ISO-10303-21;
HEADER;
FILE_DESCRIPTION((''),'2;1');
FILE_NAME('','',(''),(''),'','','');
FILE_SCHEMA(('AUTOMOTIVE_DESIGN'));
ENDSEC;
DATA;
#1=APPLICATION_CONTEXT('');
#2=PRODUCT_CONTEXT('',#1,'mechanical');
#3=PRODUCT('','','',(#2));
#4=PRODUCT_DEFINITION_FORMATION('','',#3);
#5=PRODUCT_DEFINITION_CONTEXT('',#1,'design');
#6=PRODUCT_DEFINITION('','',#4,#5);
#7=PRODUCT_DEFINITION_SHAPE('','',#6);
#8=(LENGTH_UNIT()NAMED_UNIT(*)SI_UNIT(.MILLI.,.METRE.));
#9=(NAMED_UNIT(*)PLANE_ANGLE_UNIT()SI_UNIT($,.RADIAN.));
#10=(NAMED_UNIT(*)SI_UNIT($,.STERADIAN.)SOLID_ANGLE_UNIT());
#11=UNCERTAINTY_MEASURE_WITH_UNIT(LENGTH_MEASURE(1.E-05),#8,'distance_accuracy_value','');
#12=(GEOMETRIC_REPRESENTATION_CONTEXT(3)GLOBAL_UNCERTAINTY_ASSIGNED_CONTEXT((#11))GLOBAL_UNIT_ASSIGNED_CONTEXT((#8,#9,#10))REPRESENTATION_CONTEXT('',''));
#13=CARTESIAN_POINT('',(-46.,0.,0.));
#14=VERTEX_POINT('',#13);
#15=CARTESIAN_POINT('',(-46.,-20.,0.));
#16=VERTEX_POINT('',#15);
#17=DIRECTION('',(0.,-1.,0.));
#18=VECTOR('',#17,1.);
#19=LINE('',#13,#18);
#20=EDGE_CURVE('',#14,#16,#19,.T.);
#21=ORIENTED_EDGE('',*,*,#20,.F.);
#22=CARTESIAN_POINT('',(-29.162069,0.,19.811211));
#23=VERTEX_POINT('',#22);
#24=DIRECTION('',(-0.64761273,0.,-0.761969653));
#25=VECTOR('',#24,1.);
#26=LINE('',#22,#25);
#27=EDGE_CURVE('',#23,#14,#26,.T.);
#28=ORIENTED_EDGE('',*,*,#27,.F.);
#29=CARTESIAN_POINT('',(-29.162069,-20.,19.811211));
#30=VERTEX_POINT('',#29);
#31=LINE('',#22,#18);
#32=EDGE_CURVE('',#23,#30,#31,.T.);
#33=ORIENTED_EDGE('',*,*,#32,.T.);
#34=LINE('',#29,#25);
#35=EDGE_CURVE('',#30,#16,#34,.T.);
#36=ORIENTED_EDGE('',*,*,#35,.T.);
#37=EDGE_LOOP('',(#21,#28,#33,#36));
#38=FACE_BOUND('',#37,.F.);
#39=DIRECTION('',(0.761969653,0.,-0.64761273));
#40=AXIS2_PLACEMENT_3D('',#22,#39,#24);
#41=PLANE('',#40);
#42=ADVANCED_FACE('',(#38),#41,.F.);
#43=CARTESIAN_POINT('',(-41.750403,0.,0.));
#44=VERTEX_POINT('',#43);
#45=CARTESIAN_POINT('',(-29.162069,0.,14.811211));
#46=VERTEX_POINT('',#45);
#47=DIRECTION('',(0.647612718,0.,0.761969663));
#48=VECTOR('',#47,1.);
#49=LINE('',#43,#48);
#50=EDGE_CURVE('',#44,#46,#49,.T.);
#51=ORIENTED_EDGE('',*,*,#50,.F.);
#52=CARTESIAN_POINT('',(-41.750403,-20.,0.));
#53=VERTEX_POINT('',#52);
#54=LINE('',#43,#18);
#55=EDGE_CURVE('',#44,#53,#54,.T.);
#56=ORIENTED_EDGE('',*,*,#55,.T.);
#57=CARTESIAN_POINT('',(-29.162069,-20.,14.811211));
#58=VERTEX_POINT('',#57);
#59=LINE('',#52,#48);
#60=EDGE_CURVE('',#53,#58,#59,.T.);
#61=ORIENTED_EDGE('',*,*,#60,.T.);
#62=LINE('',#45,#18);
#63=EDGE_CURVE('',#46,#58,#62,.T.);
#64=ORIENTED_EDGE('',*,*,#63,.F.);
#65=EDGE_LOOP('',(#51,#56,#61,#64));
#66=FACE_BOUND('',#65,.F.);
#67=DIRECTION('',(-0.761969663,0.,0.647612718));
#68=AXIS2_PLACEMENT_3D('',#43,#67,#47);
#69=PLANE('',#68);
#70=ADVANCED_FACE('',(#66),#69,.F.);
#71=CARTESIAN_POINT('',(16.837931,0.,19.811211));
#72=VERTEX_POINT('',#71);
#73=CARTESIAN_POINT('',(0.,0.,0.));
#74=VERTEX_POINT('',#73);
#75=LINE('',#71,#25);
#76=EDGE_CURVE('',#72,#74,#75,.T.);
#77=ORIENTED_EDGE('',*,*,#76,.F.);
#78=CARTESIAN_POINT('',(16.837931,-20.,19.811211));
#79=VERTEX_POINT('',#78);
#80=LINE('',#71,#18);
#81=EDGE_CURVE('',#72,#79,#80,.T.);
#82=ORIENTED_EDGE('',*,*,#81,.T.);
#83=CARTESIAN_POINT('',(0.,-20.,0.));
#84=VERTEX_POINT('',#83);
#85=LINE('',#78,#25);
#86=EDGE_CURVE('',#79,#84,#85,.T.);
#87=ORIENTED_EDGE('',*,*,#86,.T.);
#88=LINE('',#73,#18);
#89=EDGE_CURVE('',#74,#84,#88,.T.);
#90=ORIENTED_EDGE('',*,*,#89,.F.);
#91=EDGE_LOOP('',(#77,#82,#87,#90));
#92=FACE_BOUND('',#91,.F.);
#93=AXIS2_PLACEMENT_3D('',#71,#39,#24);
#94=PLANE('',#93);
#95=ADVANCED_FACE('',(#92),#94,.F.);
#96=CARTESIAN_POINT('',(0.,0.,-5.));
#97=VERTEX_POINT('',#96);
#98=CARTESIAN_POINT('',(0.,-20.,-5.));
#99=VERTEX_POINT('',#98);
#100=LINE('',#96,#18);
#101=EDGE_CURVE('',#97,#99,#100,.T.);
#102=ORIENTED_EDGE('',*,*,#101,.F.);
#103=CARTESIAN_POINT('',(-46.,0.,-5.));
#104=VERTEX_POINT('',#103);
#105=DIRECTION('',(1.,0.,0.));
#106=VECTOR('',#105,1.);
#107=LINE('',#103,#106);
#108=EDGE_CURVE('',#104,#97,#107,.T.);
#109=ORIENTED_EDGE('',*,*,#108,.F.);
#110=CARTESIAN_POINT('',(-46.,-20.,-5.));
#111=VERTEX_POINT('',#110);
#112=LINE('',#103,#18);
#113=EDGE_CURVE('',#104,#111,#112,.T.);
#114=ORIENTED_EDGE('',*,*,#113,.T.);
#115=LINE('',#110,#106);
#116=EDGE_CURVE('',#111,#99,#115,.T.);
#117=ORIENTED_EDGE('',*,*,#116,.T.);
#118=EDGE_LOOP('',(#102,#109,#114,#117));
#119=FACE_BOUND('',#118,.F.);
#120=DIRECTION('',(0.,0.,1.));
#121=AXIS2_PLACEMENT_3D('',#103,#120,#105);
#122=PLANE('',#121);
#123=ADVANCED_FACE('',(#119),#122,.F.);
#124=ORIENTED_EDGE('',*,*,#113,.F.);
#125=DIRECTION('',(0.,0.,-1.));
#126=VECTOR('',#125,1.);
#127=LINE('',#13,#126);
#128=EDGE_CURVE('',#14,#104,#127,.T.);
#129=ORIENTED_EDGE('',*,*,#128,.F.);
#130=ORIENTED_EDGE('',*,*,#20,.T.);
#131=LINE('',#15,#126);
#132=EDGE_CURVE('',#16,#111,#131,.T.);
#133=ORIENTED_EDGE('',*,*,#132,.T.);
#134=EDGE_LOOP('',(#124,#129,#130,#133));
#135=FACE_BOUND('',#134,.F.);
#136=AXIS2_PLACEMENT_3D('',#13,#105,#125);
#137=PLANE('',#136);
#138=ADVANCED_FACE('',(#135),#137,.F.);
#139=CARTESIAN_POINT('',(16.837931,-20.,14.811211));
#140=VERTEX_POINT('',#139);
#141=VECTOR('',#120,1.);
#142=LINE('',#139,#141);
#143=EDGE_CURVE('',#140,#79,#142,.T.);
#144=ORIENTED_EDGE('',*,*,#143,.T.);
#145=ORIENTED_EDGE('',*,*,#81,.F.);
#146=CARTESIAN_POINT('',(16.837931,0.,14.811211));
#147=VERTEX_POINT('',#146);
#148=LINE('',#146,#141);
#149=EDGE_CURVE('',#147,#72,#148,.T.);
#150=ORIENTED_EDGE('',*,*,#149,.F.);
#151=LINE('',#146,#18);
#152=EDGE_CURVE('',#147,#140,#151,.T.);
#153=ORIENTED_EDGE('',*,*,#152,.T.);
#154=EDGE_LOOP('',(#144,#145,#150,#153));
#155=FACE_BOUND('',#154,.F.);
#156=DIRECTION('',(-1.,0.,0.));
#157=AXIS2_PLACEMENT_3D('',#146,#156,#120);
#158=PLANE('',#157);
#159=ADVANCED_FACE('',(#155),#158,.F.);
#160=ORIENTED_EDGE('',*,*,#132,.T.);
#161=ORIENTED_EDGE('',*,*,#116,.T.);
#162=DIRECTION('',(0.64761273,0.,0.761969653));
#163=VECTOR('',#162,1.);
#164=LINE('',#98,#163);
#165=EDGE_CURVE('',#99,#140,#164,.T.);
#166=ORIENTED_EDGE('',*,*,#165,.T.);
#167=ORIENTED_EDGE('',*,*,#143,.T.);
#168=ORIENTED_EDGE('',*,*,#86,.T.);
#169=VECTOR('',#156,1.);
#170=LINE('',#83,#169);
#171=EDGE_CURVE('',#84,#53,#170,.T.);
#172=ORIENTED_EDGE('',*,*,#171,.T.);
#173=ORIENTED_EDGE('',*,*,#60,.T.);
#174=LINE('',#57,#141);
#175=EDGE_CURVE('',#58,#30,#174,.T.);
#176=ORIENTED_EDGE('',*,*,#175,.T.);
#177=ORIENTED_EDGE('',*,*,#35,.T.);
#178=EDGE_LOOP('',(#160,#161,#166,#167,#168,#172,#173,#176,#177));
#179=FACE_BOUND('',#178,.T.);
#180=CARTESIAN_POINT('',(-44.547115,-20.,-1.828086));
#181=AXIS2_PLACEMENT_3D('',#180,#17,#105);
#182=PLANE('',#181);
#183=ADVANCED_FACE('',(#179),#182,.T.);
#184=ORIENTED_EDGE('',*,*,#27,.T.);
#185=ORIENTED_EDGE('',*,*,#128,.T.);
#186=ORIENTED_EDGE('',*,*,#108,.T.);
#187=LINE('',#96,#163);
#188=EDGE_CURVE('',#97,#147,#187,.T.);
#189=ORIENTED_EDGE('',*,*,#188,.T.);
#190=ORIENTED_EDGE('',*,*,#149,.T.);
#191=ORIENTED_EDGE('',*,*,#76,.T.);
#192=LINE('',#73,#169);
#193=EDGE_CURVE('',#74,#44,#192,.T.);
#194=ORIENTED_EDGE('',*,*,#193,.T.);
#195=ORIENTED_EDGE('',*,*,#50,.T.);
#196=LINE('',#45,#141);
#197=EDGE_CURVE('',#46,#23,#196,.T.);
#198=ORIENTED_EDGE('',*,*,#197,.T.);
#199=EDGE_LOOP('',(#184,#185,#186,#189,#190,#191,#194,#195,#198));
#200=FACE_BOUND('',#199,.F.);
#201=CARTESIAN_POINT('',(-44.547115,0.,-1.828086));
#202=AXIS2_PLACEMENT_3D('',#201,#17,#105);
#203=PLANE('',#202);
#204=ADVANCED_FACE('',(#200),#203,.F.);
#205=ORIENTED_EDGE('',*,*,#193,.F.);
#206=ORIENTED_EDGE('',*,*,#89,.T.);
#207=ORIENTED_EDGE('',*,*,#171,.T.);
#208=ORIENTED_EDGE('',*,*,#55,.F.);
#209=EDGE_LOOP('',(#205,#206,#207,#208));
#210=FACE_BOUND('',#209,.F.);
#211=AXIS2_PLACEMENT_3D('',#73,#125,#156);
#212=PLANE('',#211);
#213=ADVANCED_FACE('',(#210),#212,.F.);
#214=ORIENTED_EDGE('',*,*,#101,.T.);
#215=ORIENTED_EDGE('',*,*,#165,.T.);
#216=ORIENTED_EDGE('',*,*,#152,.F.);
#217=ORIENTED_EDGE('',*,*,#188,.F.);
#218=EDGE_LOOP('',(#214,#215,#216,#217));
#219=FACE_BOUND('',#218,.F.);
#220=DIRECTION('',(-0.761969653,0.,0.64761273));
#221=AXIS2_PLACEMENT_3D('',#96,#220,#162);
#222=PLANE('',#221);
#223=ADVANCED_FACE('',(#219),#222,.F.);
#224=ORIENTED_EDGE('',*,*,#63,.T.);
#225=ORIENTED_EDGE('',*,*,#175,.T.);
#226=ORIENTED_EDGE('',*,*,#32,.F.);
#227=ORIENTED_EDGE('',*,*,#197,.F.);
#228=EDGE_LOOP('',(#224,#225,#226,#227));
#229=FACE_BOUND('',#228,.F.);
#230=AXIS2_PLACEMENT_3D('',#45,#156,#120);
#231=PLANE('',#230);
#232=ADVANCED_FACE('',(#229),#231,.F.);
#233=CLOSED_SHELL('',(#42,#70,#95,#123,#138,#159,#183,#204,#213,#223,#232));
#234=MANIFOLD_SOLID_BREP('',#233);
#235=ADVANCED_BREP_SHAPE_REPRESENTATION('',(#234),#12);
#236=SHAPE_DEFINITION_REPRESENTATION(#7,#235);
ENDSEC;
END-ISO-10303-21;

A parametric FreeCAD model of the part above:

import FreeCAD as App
import Part
import Sketcher

V = App.Vector

doc = App.newDocument("Part")
body = doc.addObject("PartDesign::Body", "Body")

# Sketch on XZ plane
sketch1 = body.newObject("Sketcher::SketchObject", "Sketch")
sketch1.AttachmentSupport = (doc.getObject("XZ_Plane"), [""])
sketch1.MapMode = "FlatFace"
sketch1.addGeometry(Part.LineSegment(V(-46, 0, 0), V(-46, -5, 0)), False)
sketch1.addGeometry(Part.LineSegment(V(-46, -5, 0), V(0, -5, 0)), False)
sketch1.addGeometry(Part.LineSegment(V(0, -5, 0), V(16.837931, 14.811211, 0)), False)
sketch1.addGeometry(Part.LineSegment(V(16.837931, 14.811211, 0), V(16.837931, 19.811211, 0)), False)
sketch1.addGeometry(Part.LineSegment(V(16.837931, 19.811211, 0), V(0, 0, 0)), False)
sketch1.addGeometry(Part.LineSegment(V(0, 0, 0), V(-41.750403, 0, 0)), False)
sketch1.addGeometry(Part.LineSegment(V(-41.750403, 0, 0), V(-29.162069, 14.811211, 0)), False)
sketch1.addGeometry(Part.LineSegment(V(-29.162069, 14.811211, 0), V(-29.162069, 19.811211, 0)), False)
sketch1.addGeometry(Part.LineSegment(V(-29.162069, 19.811211, 0), V(-46, 0, 0)), False)
sketch1.addConstraint(Sketcher.Constraint("Coincident", 0, 2, 1, 1))
sketch1.addConstraint(Sketcher.Constraint("Coincident", 1, 2, 2, 1))
sketch1.addConstraint(Sketcher.Constraint("Coincident", 2, 2, 3, 1))
sketch1.addConstraint(Sketcher.Constraint("Coincident", 3, 2, 4, 1))
sketch1.addConstraint(Sketcher.Constraint("Coincident", 4, 2, 5, 1))
sketch1.addConstraint(Sketcher.Constraint("Coincident", 5, 2, 6, 1))
sketch1.addConstraint(Sketcher.Constraint("Coincident", 6, 2, 7, 1))
sketch1.addConstraint(Sketcher.Constraint("Coincident", 7, 2, 8, 1))
sketch1.addConstraint(Sketcher.Constraint("Coincident", 8, 2, 0, 1))
sketch1.addConstraint(Sketcher.Constraint("Vertical", 0))
sketch1.addConstraint(Sketcher.Constraint("Horizontal", 1))
sketch1.addConstraint(Sketcher.Constraint("Vertical", 3))
sketch1.addConstraint(Sketcher.Constraint("Horizontal", 5))
sketch1.addConstraint(Sketcher.Constraint("Vertical", 7))
sketch1.addConstraint(Sketcher.Constraint("Coincident", 4, 2, -1, 1))
sketch1.addConstraint(Sketcher.Constraint("PointOnObject", 1, 2, -2))
sketch1.addConstraint(Sketcher.Constraint("PointOnObject", 8, 2, -1))
sketch1.addConstraint(Sketcher.Constraint("Parallel", 2, 4))
sketch1.addConstraint(Sketcher.Constraint("Parallel", 4, 6))
sketch1.addConstraint(Sketcher.Constraint("Parallel", 6, 8))
sketch1.addConstraint(Sketcher.Constraint("Horizontal", 2, 2, 6, 2))
sketch1.addConstraint(Sketcher.Constraint("Horizontal", 3, 2, 7, 2))
sketch1.addConstraint(Sketcher.Constraint("DistanceX", 1, 1, 1, 2, 46.0))
sketch1.addConstraint(Sketcher.Constraint("DistanceY", 0, 2, 0, 1, 5.0))
sketch1.addConstraint(Sketcher.Constraint("Distance", 2, 26.0))
sketch1.addConstraint(Sketcher.Constraint("Distance", 6, 19.438059))
pad1 = body.newObject("PartDesign::Pad", "Pad")
pad1.Profile = sketch1
pad1.Length = 20

doc.recompute()
